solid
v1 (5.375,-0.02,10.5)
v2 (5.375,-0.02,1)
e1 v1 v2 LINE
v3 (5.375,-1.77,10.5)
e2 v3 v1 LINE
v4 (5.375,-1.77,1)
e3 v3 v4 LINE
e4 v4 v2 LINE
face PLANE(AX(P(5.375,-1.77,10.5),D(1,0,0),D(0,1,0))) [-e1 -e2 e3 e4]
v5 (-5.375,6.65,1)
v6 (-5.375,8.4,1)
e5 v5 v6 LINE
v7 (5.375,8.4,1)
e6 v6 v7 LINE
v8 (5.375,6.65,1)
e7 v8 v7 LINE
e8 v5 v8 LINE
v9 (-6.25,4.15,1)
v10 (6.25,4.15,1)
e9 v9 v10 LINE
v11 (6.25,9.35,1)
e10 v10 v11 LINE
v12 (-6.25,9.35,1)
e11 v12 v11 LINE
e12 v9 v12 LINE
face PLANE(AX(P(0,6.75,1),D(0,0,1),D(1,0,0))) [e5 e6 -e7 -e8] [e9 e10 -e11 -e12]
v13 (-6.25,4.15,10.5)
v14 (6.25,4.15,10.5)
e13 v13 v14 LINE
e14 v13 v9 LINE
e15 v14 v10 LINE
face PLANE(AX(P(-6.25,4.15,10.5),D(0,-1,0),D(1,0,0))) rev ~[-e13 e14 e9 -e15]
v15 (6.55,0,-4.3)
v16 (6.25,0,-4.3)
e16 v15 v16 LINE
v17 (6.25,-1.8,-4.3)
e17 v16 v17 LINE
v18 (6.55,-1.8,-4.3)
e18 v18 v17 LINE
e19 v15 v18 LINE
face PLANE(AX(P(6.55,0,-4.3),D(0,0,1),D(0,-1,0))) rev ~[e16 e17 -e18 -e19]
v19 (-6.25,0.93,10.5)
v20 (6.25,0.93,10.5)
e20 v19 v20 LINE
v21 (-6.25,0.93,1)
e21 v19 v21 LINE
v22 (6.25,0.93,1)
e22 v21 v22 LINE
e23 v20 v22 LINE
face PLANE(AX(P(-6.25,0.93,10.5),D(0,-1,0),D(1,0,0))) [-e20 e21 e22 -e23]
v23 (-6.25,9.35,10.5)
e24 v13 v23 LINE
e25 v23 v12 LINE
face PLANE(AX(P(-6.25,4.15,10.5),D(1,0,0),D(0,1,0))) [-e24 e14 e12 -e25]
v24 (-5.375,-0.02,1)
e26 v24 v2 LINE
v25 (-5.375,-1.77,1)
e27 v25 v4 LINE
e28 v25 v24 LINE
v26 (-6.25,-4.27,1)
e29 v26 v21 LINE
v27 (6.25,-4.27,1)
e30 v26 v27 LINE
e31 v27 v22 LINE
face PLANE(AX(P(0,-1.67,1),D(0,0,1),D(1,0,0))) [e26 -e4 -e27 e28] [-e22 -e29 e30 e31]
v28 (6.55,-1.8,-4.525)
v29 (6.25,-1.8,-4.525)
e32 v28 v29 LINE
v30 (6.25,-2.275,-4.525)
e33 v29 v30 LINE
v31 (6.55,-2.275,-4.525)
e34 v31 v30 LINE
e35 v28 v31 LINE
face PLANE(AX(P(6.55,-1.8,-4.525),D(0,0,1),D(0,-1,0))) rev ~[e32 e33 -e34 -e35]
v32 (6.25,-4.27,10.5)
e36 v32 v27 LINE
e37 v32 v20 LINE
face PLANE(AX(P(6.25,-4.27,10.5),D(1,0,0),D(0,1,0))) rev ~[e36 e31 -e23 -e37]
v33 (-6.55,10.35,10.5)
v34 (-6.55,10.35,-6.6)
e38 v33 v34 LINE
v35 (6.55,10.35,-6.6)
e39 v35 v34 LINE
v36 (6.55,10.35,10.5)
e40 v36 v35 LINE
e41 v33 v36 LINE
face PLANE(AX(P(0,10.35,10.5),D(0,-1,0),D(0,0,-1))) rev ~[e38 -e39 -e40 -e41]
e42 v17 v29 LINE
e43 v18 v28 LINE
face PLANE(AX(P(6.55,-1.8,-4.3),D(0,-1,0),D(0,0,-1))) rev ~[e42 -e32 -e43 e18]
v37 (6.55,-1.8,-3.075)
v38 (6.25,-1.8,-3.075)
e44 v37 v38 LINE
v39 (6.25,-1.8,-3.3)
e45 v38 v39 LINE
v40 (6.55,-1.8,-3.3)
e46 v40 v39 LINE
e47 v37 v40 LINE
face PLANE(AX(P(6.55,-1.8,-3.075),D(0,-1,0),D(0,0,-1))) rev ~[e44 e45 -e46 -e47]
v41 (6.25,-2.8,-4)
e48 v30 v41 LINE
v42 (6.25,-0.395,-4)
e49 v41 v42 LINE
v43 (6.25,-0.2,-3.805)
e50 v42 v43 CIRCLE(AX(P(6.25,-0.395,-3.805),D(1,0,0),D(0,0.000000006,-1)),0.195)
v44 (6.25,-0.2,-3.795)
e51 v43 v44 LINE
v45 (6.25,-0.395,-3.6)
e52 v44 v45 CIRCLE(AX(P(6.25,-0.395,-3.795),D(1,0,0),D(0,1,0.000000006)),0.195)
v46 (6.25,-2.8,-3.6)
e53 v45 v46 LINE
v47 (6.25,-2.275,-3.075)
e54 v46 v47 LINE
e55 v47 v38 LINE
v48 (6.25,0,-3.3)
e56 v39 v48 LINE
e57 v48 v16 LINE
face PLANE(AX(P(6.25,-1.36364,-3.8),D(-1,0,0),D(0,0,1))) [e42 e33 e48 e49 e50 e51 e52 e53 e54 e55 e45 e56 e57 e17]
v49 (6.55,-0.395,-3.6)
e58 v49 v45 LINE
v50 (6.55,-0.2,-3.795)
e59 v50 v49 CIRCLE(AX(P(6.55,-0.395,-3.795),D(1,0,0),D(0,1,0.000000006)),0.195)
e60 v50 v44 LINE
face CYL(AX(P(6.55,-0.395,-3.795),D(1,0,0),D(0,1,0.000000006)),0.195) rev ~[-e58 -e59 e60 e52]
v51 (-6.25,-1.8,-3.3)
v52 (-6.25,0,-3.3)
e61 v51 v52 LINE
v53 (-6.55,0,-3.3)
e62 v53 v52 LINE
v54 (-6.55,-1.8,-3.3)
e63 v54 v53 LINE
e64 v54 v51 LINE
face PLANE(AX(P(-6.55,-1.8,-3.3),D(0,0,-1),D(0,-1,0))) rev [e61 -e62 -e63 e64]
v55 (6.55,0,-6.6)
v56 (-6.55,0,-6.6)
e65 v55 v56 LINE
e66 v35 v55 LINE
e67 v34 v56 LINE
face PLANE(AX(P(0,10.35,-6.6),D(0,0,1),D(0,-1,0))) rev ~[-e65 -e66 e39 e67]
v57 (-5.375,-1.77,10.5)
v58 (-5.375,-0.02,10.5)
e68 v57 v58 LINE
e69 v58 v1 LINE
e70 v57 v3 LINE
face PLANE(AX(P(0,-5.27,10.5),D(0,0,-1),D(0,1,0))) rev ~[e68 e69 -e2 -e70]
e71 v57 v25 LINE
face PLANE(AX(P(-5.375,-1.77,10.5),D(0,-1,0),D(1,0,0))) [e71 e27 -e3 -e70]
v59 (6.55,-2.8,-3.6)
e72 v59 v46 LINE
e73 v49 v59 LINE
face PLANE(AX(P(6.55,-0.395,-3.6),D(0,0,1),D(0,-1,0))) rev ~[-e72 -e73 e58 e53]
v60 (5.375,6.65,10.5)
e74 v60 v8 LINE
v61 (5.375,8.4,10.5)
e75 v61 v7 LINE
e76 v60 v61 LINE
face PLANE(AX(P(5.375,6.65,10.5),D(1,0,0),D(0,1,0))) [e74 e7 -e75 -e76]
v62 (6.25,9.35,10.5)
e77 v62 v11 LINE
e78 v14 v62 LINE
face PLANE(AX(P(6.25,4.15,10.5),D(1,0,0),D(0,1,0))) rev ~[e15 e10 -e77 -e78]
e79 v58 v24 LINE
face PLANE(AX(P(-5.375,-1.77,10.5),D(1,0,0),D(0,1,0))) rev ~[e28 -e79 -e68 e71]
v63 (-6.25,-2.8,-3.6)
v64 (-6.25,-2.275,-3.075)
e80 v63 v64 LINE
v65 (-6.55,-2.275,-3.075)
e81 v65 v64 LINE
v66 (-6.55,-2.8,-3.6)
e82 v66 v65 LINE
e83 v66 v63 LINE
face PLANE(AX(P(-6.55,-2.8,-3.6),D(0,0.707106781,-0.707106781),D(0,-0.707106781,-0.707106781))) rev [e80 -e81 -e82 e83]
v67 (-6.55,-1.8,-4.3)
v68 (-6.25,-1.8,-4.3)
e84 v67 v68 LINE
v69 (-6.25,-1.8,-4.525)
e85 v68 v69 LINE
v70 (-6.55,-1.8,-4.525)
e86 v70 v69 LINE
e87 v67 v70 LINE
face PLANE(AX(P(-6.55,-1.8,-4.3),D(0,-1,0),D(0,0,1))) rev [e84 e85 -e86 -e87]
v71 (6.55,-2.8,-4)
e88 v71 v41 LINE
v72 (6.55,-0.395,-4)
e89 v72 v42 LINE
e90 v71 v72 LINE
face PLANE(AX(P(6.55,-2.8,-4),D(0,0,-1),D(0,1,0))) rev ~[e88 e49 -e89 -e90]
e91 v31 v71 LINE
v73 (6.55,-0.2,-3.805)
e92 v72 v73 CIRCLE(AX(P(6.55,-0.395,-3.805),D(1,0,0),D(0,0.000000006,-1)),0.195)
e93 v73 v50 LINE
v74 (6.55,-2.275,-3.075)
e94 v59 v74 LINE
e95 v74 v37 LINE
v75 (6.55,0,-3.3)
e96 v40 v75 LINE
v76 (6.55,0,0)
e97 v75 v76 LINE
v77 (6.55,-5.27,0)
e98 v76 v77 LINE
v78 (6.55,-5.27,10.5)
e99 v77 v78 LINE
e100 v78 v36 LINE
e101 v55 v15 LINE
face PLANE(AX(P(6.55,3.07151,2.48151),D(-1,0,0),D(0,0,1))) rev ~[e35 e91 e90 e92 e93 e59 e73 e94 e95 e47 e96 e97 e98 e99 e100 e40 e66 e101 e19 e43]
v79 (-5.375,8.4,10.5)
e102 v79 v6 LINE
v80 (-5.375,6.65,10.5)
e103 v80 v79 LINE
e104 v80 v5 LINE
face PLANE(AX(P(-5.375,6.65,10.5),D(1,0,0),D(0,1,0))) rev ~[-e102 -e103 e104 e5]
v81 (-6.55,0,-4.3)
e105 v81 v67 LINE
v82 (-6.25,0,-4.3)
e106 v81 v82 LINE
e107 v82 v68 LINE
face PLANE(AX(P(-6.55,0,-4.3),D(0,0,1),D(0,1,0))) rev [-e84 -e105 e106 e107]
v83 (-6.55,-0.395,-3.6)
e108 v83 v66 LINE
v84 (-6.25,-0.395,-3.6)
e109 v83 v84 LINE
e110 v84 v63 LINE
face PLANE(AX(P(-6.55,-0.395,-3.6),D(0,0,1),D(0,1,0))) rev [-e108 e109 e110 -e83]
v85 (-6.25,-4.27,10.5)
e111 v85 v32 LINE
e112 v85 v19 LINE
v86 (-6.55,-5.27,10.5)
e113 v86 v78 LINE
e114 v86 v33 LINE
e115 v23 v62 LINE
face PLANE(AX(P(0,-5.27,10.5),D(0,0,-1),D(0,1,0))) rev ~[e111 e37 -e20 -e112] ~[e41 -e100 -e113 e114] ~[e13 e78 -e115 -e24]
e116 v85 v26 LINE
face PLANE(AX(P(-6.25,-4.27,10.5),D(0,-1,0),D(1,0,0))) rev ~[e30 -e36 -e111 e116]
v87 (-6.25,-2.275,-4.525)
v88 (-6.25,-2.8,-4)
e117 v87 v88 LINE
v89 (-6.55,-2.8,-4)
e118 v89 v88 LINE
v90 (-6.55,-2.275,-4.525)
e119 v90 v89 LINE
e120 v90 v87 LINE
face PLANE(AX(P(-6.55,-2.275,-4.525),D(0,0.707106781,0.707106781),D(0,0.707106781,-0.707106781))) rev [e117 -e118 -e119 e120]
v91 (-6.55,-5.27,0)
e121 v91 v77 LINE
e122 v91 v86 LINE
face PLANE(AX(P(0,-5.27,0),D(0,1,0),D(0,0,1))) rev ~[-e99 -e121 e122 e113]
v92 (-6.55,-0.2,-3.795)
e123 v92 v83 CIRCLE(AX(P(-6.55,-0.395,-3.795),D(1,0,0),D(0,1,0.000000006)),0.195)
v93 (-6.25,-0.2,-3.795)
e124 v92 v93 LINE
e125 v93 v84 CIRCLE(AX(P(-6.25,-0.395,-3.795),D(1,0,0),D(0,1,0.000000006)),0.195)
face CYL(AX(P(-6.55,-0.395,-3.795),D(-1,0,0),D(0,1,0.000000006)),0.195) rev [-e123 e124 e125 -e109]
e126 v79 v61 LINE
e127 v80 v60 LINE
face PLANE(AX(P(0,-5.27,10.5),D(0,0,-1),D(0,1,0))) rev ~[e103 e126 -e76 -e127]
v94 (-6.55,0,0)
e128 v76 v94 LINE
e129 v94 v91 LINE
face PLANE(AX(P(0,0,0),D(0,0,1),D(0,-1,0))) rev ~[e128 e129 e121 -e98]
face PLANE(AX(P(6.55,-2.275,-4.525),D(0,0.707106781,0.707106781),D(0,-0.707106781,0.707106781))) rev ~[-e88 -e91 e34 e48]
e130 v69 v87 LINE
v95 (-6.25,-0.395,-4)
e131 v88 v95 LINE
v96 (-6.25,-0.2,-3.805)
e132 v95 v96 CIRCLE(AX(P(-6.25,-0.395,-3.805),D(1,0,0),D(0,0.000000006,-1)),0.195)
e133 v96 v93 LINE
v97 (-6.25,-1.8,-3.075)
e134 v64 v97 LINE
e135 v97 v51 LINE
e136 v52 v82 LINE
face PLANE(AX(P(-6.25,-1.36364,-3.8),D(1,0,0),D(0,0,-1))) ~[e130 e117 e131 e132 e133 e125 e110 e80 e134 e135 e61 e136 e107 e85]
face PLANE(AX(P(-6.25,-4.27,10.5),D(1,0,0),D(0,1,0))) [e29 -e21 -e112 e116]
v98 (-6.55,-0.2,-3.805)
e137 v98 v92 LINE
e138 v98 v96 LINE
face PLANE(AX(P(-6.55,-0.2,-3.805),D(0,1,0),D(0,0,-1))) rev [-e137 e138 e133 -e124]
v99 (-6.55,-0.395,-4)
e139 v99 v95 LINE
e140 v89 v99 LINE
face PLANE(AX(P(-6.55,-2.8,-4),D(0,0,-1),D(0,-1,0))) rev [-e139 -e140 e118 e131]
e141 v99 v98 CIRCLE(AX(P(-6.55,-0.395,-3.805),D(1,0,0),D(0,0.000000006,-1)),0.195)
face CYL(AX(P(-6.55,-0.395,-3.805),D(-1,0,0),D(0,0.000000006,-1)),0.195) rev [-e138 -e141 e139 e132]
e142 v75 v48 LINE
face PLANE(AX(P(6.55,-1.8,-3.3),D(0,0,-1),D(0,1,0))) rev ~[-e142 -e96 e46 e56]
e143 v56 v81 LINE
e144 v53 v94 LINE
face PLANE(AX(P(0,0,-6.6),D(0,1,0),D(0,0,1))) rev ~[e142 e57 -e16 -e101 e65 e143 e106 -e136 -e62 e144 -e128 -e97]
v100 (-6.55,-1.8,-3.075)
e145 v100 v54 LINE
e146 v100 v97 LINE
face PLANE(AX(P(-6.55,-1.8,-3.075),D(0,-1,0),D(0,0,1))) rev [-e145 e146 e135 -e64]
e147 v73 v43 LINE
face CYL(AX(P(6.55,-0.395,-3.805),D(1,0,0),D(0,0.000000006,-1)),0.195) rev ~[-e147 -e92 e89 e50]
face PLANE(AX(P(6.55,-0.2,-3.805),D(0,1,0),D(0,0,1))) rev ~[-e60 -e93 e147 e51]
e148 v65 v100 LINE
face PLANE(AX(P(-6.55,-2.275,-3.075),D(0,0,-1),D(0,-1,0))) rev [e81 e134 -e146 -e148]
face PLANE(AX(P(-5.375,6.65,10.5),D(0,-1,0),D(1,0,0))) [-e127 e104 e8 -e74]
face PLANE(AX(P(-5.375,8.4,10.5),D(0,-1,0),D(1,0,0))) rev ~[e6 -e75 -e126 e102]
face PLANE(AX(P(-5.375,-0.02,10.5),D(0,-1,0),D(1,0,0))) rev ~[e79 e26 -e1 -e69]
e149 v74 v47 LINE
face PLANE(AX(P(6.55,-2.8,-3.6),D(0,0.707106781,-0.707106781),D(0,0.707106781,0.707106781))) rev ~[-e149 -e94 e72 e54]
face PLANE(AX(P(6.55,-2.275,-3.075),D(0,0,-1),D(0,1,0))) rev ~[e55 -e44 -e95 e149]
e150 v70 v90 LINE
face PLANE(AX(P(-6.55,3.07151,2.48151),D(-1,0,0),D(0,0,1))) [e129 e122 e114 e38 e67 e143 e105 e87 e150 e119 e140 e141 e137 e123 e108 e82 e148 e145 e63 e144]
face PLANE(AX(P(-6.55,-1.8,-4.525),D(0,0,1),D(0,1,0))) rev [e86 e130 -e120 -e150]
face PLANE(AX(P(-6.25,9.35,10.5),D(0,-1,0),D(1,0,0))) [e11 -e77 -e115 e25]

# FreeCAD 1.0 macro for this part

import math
import FreeCAD as App
import Part
import Sketcher

doc = App.newDocument("Part")
body = doc.addObject("PartDesign::Body", "Body")

# Sketch on YZ plane
sketch1 = doc.addObject("Sketcher::SketchObject", "Sketch")
body.addObject(sketch1)
sketch1.AttachmentSupport = (doc.YZ_Plane, [""])
sketch1.MapMode = "FlatFace"
sketch1.addGeometry([
    Part.LineSegment(App.Vector(10, -7, 0), App.Vector(10, 10, 0)),  # 0
    Part.LineSegment(App.Vector(10, 10, 0), App.Vector(-5, 10, 0)),  # 1
    Part.LineSegment(App.Vector(-5, 10, 0), App.Vector(-5, 0, 0)),  # 2
    Part.LineSegment(App.Vector(-5, 0, 0), App.Vector(0, 0, 0)),  # 3
    Part.LineSegment(App.Vector(0, 0, 0), App.Vector(0, -7, 0)),  # 4
    Part.LineSegment(App.Vector(0, -7, 0), App.Vector(10, -7, 0)),  # 5
], False)
sketch1.addConstraint([
    Sketcher.Constraint("Coincident", 0, 2, 1, 1),
    Sketcher.Constraint("Coincident", 1, 2, 2, 1),
    Sketcher.Constraint("Coincident", 2, 2, 3, 1),
    Sketcher.Constraint("Coincident", 3, 2, 4, 1),
    Sketcher.Constraint("Coincident", 4, 2, 5, 1),
    Sketcher.Constraint("Coincident", 5, 2, 0, 1),
    Sketcher.Constraint("Vertical", 0),
    Sketcher.Constraint("Horizontal", 1),
    Sketcher.Constraint("Vertical", 2),
    Sketcher.Constraint("Horizontal", 3),
    Sketcher.Constraint("Vertical", 4),
    Sketcher.Constraint("Horizontal", 5),
    Sketcher.Constraint("Coincident", 3, 2, -1, 1),
    Sketcher.Constraint("DistanceY", 0, 1, 0, 2, 17.1),
    Sketcher.Constraint("DistanceY", 2, 2, 2, 1, 10.5),
    Sketcher.Constraint("DistanceX", 1, 2, 1, 1, 15.62),
    Sketcher.Constraint("DistanceX", 3, 1, 3, 2, 5.27),
])
pad1 = doc.addObject("PartDesign::Pad", "Pad")
body.addObject(pad1)
pad1.Profile = sketch1
pad1.Type = "TwoLengths"
pad1.Length = 6.55
pad1.Length2 = 6.55

# Sketch on XY plane
sketch2 = doc.addObject("Sketcher::SketchObject", "Sketch001")
body.addObject(sketch2)
sketch2.AttachmentSupport = (doc.XY_Plane, [""])
sketch2.MapMode = "FlatFace"
sketch2.AttachmentOffset = App.Placement(App.Vector(0, 0, 10.5), App.Rotation())
sketch2.addGeometry([
    Part.LineSegment(App.Vector(-6.2, 9.3, 0), App.Vector(-6.2, 4.2, 0)),  # 0
    Part.LineSegment(App.Vector(-6.2, 4.2, 0), App.Vector(6.2, 4.2, 0)),  # 1
    Part.LineSegment(App.Vector(6.2, 4.2, 0), App.Vector(6.2, 9.3, 0)),  # 2
    Part.LineSegment(App.Vector(6.2, 9.3, 0), App.Vector(-6.2, 9.3, 0)),  # 3
    Part.LineSegment(App.Vector(5.4, 6.7, 0), App.Vector(-5.4, 6.7, 0)),  # 4
    Part.LineSegment(App.Vector(-5.4, 6.7, 0), App.Vector(-5.4, 8.4, 0)),  # 5
    Part.LineSegment(App.Vector(-5.4, 8.4, 0), App.Vector(5.4, 8.4, 0)),  # 6
    Part.LineSegment(App.Vector(5.4, 8.4, 0), App.Vector(5.4, 6.7, 0)),  # 7
    Part.LineSegment(App.Vector(-6.2, 0.9, 0), App.Vector(-6.2, -4.3, 0)),  # 8
    Part.LineSegment(App.Vector(-6.2, -4.3, 0), App.Vector(6.2, -4.3, 0)),  # 9
    Part.LineSegment(App.Vector(6.2, -4.3, 0), App.Vector(6.2, 0.9, 0)),  # 10
    Part.LineSegment(App.Vector(6.2, 0.9, 0), App.Vector(-6.2, 0.9, 0)),  # 11
    Part.LineSegment(App.Vector(5.4, -1.8, 0), App.Vector(-5.4, -1.8, 0)),  # 12
    Part.LineSegment(App.Vector(-5.4, -1.8, 0), App.Vector(-5.4, 0, 0)),  # 13
    Part.LineSegment(App.Vector(-5.4, 0, 0), App.Vector(5.4, 0, 0)),  # 14
    Part.LineSegment(App.Vector(5.4, 0, 0), App.Vector(5.4, -1.8, 0)),  # 15
], False)
sketch2.addConstraint([
    Sketcher.Constraint("Coincident", 0, 2, 1, 1),
    Sketcher.Constraint("Coincident", 1, 2, 2, 1),
    Sketcher.Constraint("Coincident", 2, 2, 3, 1),
    Sketcher.Constraint("Coincident", 3, 2, 0, 1),
    Sketcher.Constraint("Coincident", 4, 2, 5, 1),
    Sketcher.Constraint("Coincident", 5, 2, 6, 1),
    Sketcher.Constraint("Coincident", 6, 2, 7, 1),
    Sketcher.Constraint("Coincident", 7, 2, 4, 1),
    Sketcher.Constraint("Coincident", 8, 2, 9, 1),
    Sketcher.Constraint("Coincident", 9, 2, 10, 1),
    Sketcher.Constraint("Coincident", 10, 2, 11, 1),
    Sketcher.Constraint("Coincident", 11, 2, 8, 1),
    Sketcher.Constraint("Coincident", 12, 2, 13, 1),
    Sketcher.Constraint("Coincident", 13, 2, 14, 1),
    Sketcher.Constraint("Coincident", 14, 2, 15, 1),
    Sketcher.Constraint("Coincident", 15, 2, 12, 1),
    Sketcher.Constraint("Vertical", 0),
    Sketcher.Constraint("Horizontal", 1),
    Sketcher.Constraint("Vertical", 2),
    Sketcher.Constraint("Horizontal", 3),
    Sketcher.Constraint("Horizontal", 4),
    Sketcher.Constraint("Vertical", 5),
    Sketcher.Constraint("Horizontal", 6),
    Sketcher.Constraint("Vertical", 7),
    Sketcher.Constraint("Vertical", 8),
    Sketcher.Constraint("Horizontal", 9),
    Sketcher.Constraint("Vertical", 10),
    Sketcher.Constraint("Horizontal", 11),
    Sketcher.Constraint("Horizontal", 12),
    Sketcher.Constraint("Vertical", 13),
    Sketcher.Constraint("Horizontal", 14),
    Sketcher.Constraint("Vertical", 15),
    Sketcher.Constraint("Vertical", 3, 2, 8, 2),
    Sketcher.Constraint("Vertical", 2, 2, 9, 2),
    Sketcher.Constraint("Vertical", 5, 2, 12, 2),
    Sketcher.Constraint("Vertical", 7, 2, 14, 2),
    Sketcher.Constraint("Equal", 2, 8),
    Sketcher.Constraint("Equal", 7, 13),
    Sketcher.Constraint("DistanceX", 1, 1, 1, 2, 12.5),
    Sketcher.Constraint("DistanceY", 0, 2, 0, 1, 5.2),
    Sketcher.Constraint("DistanceX", 4, 2, 4, 1, 10.75),
    Sketcher.Constraint("DistanceY", 5, 1, 5, 2, 1.75),
    Sketcher.Constraint("DistanceY", -1, 1, 5, 2, 8.4),
    Sketcher.Constraint("DistanceY", 0, 2, 4, 2, 2.5),
    Sketcher.Constraint("DistanceY", 8, 2, 12, 2, 2.5),
    Sketcher.Constraint("DistanceX", 0, 2, -1, 1, 6.25),
    Sketcher.Constraint("DistanceY", 8, 2, -1, 1, 4.27),
    Sketcher.Constraint("DistanceX", 4, 2, -1, 1, 5.375),
])
pocket1 = doc.addObject("PartDesign::Pocket", "Pocket")
body.addObject(pocket1)
pocket1.Profile = sketch2
pocket1.Length = 9.5

# Sketch on YZ plane
sketch3 = doc.addObject("Sketcher::SketchObject", "Sketch002")
body.addObject(sketch3)
sketch3.AttachmentSupport = (doc.YZ_Plane, [""])
sketch3.MapMode = "FlatFace"
sketch3.AttachmentOffset = App.Placement(App.Vector(0, 0, 6.55), App.Rotation())
sketch3.addGeometry([
    Part.LineSegment(App.Vector(-2.275, -3.075, 0), App.Vector(-2.8, -3.6, 0)),  # 0
    Part.LineSegment(App.Vector(-2.8, -3.6, 0), App.Vector(-0.395, -3.6, 0)),  # 1
    Part.ArcOfCircle(Part.Circle(App.Vector(-0.395, -3.795, 0), App.Vector(0, 0, 1), 0.195), math.radians(0), math.radians(90)),  # 2
    Part.LineSegment(App.Vector(-0.2, -3.795, 0), App.Vector(-0.2, -3.805, 0)),  # 3
    Part.ArcOfCircle(Part.Circle(App.Vector(-0.395, -3.805, 0), App.Vector(0, 0, 1), 0.195), math.radians(-90), math.radians(0)),  # 4
    Part.LineSegment(App.Vector(-0.395, -4, 0), App.Vector(-2.8, -4, 0)),  # 5
    Part.LineSegment(App.Vector(-2.8, -4, 0), App.Vector(-2.275, -4.525, 0)),  # 6
    Part.LineSegment(App.Vector(-2.275, -4.525, 0), App.Vector(-1.8, -4.525, 0)),  # 7
    Part.LineSegment(App.Vector(-1.8, -4.525, 0), App.Vector(-1.8, -4.3, 0)),  # 8
    Part.LineSegment(App.Vector(-1.8, -4.3, 0), App.Vector(0, -4.3, 0)),  # 9
    Part.LineSegment(App.Vector(0, -4.3, 0), App.Vector(0, -3.3, 0)),  # 10
    Part.LineSegment(App.Vector(0, -3.3, 0), App.Vector(-1.8, -3.3, 0)),  # 11
    Part.LineSegment(App.Vector(-1.8, -3.3, 0), App.Vector(-1.8, -3.075, 0)),  # 12
    Part.LineSegment(App.Vector(-1.8, -3.075, 0), App.Vector(-2.275, -3.075, 0)),  # 13
], False)
sketch3.addConstraint([
    Sketcher.Constraint("Coincident", 0, 2, 1, 1),
    Sketcher.Constraint("Tangent", 1, 2, 2, 2),
    Sketcher.Constraint("Tangent", 2, 1, 3, 1),
    Sketcher.Constraint("Tangent", 3, 2, 4, 2),
    Sketcher.Constraint("Tangent", 4, 1, 5, 1),
    Sketcher.Constraint("Coincident", 5, 2, 6, 1),
    Sketcher.Constraint("Coincident", 6, 2, 7, 1),
    Sketcher.Constraint("Coincident", 7, 2, 8, 1),
    Sketcher.Constraint("Coincident", 8, 2, 9, 1),
    Sketcher.Constraint("Coincident", 9, 2, 10, 1),
    Sketcher.Constraint("Coincident", 10, 2, 11, 1),
    Sketcher.Constraint("Coincident", 11, 2, 12, 1),
    Sketcher.Constraint("Coincident", 12, 2, 13, 1),
    Sketcher.Constraint("Coincident", 13, 2, 0, 1),
    Sketcher.Constraint("Horizontal", 1),
    Sketcher.Constraint("Vertical", 3),
    Sketcher.Constraint("Horizontal", 5),
    Sketcher.Constraint("Horizontal", 7),
    Sketcher.Constraint("Vertical", 8),
    Sketcher.Constraint("Horizontal", 9),
    Sketcher.Constraint("Vertical", 10),
    Sketcher.Constraint("Horizontal", 11),
    Sketcher.Constraint("Vertical", 12),
    Sketcher.Constraint("Horizontal", 13),
    Sketcher.Constraint("Equal", 2, 4),
    Sketcher.Constraint("PointOnObject", 9, 2, -2),
    Sketcher.Constraint("Perpendicular", 0, 6),
    Sketcher.Constraint("Vertical", 0, 2, 5, 2),
    Sketcher.Constraint("Vertical", 8, 2, 11, 2),
    Sketcher.Constraint("Vertical", 6, 2, 13, 2),
    Sketcher.Constraint("Equal", 8, 12),
    Sketcher.Constraint("Equal", 0, 6),
    Sketcher.Constraint("DistanceY", 10, 1, 10, 2, 1.0),
    Sketcher.Constraint("DistanceX", 9, 1, 9, 2, 1.8),
    Sketcher.Constraint("DistanceY", 4, 1, -1, 1, 4.0),
    Sketcher.Constraint("Radius", 2, 0.195),
    Sketcher.Constraint("DistanceX", 5, 2, 7, 2, 1.0),
    Sketcher.Constraint("DistanceY", 3, 2, 3, 1, 0.01),
    Sketcher.Constraint("DistanceX", 2, 1, -1, 1, 0.2),
    Sketcher.Constraint("DistanceX", 7, 1, 7, 2, 0.475),
])
pad2 = doc.addObject("PartDesign::Pad", "Pad001")
body.addObject(pad2)
pad2.Profile = sketch3
pad2.Length = 0.3
pad2.Reversed = True
doc.recompute()

mirrored = doc.addObject("PartDesign::Mirrored", "Mirrored")
body.addObject(mirrored)
mirrored.Originals = [pad2]
mirrored.MirrorPlane = (doc.YZ_Plane, [""])
body.Tip = mirrored

doc.recompute()
